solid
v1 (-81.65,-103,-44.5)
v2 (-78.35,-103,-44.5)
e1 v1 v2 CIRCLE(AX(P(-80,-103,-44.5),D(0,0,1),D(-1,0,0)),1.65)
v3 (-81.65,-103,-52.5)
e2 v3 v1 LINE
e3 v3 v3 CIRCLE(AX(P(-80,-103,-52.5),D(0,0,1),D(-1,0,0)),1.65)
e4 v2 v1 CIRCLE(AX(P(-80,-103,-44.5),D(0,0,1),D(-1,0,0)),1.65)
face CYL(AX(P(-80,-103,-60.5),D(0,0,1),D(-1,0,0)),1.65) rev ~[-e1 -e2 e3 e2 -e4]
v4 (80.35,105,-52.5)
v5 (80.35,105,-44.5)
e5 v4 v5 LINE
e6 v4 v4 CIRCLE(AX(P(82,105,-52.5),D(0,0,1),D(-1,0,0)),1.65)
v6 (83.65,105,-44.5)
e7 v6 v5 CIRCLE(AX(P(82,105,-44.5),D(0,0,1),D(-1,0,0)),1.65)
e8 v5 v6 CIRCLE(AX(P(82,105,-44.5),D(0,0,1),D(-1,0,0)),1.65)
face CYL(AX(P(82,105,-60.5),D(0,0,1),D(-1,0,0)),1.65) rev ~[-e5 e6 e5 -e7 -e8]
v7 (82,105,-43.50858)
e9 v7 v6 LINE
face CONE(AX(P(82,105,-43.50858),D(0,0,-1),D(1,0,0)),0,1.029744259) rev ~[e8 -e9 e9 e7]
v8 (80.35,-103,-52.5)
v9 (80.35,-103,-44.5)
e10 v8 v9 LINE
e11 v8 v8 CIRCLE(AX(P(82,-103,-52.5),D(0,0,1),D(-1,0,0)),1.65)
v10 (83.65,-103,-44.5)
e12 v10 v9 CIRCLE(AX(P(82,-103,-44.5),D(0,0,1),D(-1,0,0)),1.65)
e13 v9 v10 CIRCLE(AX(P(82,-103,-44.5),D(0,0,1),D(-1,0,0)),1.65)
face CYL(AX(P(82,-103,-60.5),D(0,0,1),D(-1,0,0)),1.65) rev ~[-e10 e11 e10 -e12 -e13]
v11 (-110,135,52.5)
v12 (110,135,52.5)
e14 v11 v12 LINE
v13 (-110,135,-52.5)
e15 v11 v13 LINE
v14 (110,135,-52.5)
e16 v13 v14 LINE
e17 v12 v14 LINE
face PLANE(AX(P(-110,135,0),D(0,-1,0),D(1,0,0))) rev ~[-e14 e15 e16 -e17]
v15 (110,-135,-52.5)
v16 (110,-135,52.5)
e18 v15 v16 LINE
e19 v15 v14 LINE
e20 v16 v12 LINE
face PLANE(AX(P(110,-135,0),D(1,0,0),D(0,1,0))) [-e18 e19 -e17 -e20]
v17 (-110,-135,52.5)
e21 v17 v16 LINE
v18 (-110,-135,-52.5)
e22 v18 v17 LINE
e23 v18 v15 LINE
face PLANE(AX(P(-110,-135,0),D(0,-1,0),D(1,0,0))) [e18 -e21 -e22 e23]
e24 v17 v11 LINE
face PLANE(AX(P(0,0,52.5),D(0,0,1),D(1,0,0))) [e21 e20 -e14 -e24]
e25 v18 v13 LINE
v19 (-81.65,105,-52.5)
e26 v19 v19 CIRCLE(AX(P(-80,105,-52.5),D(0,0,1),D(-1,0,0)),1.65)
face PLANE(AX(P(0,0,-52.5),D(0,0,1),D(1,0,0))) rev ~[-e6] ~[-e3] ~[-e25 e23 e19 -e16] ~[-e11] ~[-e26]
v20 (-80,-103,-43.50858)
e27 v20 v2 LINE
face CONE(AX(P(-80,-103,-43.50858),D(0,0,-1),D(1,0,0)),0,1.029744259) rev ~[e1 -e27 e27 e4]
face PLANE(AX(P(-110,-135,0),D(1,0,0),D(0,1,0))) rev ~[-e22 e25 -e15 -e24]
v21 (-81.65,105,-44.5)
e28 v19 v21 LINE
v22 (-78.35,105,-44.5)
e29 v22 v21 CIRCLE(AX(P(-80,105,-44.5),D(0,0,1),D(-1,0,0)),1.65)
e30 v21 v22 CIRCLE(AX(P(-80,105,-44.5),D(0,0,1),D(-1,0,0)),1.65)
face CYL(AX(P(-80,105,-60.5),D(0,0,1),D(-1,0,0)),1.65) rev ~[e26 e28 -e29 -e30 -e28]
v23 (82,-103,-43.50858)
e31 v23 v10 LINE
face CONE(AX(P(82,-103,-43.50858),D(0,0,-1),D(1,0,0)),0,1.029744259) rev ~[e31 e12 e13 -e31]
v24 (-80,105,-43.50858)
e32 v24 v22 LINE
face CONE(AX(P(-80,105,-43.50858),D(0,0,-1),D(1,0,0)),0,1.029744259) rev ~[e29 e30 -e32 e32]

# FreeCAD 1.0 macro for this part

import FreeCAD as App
import Part
import Sketcher

V = App.Vector
Q = App.Units.Quantity

doc = App.newDocument("Part")
params = doc.addObject("Spreadsheet::Sheet", "Params")
for row, (alias, value) in enumerate([
    ("sketch1_width", "220 mm"),
    ("sketch1_height", "270 mm"),
    ("pad1_length", "105 mm"),
    ("sketch2_diameter", "3.3 mm"),
    ("hole_diameter", "3.3 mm"),
    ("hole_depth", "8 mm"),
], start=1):
    params.set(f"A{row}", alias)
    params.set(f"B{row}", "=" + value)
    params.setAlias(f"B{row}", alias)

body = doc.addObject("PartDesign::Body", "Body")

# Sketch on XY plane
sketch1 = body.newObject("Sketcher::SketchObject", "Sketch")
sketch1.AttachmentSupport = (doc.getObject("XY_Plane"), [""])
sketch1.MapMode = "FlatFace"
sketch1.addGeometry([
    Part.LineSegment(V(-110, 135, 0), V(-110, -135, 0)),
    Part.LineSegment(V(-110, -135, 0), V(110, -135, 0)),
    Part.LineSegment(V(110, -135, 0), V(110, 135, 0)),
    Part.LineSegment(V(110, 135, 0), V(-110, 135, 0)),
], False)
sketch1.addConstraint([
    Sketcher.Constraint("Coincident", 0, 2, 1, 1),
    Sketcher.Constraint("Coincident", 1, 2, 2, 1),
    Sketcher.Constraint("Coincident", 2, 2, 3, 1),
    Sketcher.Constraint("Coincident", 3, 2, 0, 1),
    Sketcher.Constraint("Vertical", 0),
    Sketcher.Constraint("Horizontal", 1),
    Sketcher.Constraint("Vertical", 2),
    Sketcher.Constraint("Horizontal", 3),
    Sketcher.Constraint("Symmetric", 0, 2, 2, 2, -1, 1),
    Sketcher.Constraint("DistanceX", 1, 1, 1, 2, Q("220 mm")),
    Sketcher.Constraint("DistanceY", 0, 2, 0, 1, Q("270 mm")),
])
sketch1.setExpression("Constraints[9]", "Params.sketch1_width")
sketch1.setExpression("Constraints[10]", "Params.sketch1_height")
pad1 = body.newObject("PartDesign::Pad", "Pad")
pad1.Profile = sketch1
pad1.setExpression("Length", "Params.pad1_length")
pad1.Midplane = True

# Sketch on XY plane
sketch2 = body.newObject("Sketcher::SketchObject", "Sketch001")
sketch2.AttachmentSupport = (doc.getObject("XY_Plane"), [""])
sketch2.MapMode = "FlatFace"
sketch2.AttachmentOffset = App.Placement(V(0, 0, -52.5), App.Rotation())
sketch2.addGeometry([
    Part.Circle(V(-80, 105, 0), V(0, 0, 1), 1.65),
    Part.Circle(V(-80, -103, 0), V(0, 0, 1), 1.65),
    Part.Circle(V(82, -103, 0), V(0, 0, 1), 1.65),
    Part.Circle(V(82, 105, 0), V(0, 0, 1), 1.65),
], False)
sketch2.addConstraint([
    Sketcher.Constraint("Equal", 0, 1),
    Sketcher.Constraint("Equal", 1, 2),
    Sketcher.Constraint("Equal", 2, 3),
    Sketcher.Constraint("Horizontal", 1, 3, 2, 3),
    Sketcher.Constraint("Horizontal", 0, 3, 3, 3),
    Sketcher.Constraint("Vertical", 0, 3, 1, 3),
    Sketcher.Constraint("Vertical", 2, 3, 3, 3),
    Sketcher.Constraint("Diameter", 0, Q("3.3 mm")),
    Sketcher.Constraint("DistanceX", 0, 3, -1, 1, Q("80 mm")),
    Sketcher.Constraint("DistanceY", -1, 1, 0, 3, Q("105 mm")),
    Sketcher.Constraint("DistanceY", 1, 3, -1, 1, Q("103 mm")),
    Sketcher.Constraint("DistanceX", -1, 1, 2, 3, Q("82 mm")),
])
sketch2.setExpression("Constraints[7]", "Params.sketch2_diameter")
doc.recompute()
hole = body.newObject("PartDesign::Hole", "Hole")
hole.Profile = sketch2
hole.ThreadType = "None"
hole.setExpression("Diameter", "Params.hole_diameter")
hole.DepthType = "Dimension"
hole.setExpression("Depth", "Params.hole_depth")
hole.DrillPoint = "Angled"
hole.DrillPointAngle = 118
hole.Reversed = True

doc.recompute()
